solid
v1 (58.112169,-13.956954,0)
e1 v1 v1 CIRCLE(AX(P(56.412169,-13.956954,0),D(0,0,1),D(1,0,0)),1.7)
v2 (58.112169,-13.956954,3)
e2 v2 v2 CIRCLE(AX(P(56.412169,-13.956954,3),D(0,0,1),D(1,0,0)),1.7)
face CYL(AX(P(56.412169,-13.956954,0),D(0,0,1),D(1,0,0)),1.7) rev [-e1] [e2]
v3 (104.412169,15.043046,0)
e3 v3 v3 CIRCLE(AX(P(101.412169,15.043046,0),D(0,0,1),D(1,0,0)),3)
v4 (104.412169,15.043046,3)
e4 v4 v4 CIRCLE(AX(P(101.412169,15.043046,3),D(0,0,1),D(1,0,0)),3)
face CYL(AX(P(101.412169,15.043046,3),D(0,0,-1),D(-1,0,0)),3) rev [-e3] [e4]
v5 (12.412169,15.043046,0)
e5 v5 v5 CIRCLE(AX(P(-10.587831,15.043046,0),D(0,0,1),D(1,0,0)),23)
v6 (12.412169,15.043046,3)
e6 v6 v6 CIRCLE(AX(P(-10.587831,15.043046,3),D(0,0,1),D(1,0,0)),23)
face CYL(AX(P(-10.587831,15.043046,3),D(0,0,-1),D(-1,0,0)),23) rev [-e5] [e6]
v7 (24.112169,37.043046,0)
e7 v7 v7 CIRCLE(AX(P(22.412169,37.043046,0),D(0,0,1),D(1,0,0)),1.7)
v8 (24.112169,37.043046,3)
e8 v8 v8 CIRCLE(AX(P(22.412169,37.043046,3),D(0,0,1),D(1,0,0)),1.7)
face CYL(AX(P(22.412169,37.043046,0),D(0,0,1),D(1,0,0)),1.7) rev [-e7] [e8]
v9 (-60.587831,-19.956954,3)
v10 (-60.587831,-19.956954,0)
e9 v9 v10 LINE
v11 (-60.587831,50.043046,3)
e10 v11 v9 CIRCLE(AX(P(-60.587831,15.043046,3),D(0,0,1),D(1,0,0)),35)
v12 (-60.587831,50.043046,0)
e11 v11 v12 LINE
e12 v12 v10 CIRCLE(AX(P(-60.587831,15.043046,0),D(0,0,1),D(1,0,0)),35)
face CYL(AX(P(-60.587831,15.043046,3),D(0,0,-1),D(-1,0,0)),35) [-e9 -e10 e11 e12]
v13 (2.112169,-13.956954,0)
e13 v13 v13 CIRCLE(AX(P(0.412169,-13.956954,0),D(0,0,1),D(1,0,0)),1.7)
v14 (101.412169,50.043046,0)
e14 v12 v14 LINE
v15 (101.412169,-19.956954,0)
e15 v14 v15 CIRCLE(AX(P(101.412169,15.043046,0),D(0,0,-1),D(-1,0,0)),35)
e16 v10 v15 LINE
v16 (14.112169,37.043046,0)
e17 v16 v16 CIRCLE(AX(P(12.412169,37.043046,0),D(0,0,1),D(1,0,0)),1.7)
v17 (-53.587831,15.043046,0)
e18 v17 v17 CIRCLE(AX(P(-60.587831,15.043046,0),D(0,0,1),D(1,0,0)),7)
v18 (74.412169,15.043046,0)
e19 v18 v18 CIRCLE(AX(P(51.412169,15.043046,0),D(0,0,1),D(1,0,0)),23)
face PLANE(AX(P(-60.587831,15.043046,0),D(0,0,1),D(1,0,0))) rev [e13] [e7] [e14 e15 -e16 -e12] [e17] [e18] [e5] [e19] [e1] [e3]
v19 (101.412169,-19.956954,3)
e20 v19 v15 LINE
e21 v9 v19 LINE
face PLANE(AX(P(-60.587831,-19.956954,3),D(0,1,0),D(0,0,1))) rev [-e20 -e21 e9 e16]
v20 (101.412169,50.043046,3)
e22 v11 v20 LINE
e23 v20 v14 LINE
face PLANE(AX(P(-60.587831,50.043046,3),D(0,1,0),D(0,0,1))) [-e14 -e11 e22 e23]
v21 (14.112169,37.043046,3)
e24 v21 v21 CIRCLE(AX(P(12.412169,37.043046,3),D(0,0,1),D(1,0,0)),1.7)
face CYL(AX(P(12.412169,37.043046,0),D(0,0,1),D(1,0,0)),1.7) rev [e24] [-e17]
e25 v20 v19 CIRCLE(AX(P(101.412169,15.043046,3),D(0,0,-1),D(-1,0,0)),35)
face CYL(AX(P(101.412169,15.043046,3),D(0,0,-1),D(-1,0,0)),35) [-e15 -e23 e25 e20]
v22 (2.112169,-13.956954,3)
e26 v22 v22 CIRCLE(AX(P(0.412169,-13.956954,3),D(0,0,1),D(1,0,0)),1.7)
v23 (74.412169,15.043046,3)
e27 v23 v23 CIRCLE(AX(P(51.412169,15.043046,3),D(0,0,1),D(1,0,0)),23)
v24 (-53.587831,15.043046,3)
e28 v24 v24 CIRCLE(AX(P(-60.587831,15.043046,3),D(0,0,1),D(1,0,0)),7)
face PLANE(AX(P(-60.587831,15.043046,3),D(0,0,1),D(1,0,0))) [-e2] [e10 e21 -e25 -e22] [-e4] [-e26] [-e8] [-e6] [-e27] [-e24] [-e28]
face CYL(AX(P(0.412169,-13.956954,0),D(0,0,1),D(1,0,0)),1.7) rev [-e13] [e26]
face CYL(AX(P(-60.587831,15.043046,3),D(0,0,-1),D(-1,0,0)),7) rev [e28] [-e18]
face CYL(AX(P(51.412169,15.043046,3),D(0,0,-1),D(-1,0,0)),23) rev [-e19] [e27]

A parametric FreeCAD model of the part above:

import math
import FreeCAD as App
import Part
import Sketcher

V = App.Vector

doc = App.newDocument("Part")
body = doc.addObject("PartDesign::Body", "Body")

# Sketch on XY plane
sketch1 = body.newObject("Sketcher::SketchObject", "Sketch")
sketch1.AttachmentSupport = (doc.getObject("XY_Plane"), [""])
sketch1.MapMode = "FlatFace"
sketch1.addGeometry(Part.LineSegment(V(101.412169, 50.043046, 0), V(-60.587831, 50.043046, 0)), False)
sketch1.addGeometry(Part.ArcOfCircle(Part.Circle(V(-60.587831, 15.043046, 0), V(0, 0, 1), 35), math.radians(90), math.radians(270)), False)
sketch1.addGeometry(Part.LineSegment(V(-60.587831, -19.956954, 0), V(101.412169, -19.956954, 0)), False)
sketch1.addGeometry(Part.ArcOfCircle(Part.Circle(V(101.412169, 15.043046, 0), V(0, 0, 1), 35), math.radians(-90), math.radians(90)), False)
sketch1.addGeometry(Part.Circle(V(101.412169, 15.043046, 0), V(0, 0, 1), 3), False)
sketch1.addGeometry(Part.Circle(V(51.412169, 15.043046, 0), V(0, 0, 1), 23), False)
sketch1.addGeometry(Part.Circle(V(-10.587831, 15.043046, 0), V(0, 0, 1), 23), False)
sketch1.addGeometry(Part.Circle(V(-60.587831, 15.043046, 0), V(0, 0, 1), 7), False)
sketch1.addConstraint(Sketcher.Constraint("Tangent", 0, 2, 1, 1))
sketch1.addConstraint(Sketcher.Constraint("Tangent", 1, 2, 2, 1))
sketch1.addConstraint(Sketcher.Constraint("Tangent", 2, 2, 3, 1))
sketch1.addConstraint(Sketcher.Constraint("Tangent", 3, 2, 0, 1))
sketch1.addConstraint(Sketcher.Constraint("Horizontal", 0))
sketch1.addConstraint(Sketcher.Constraint("Horizontal", 2))
sketch1.addConstraint(Sketcher.Constraint("Coincident", 4, 3, 3, 3))
sketch1.addConstraint(Sketcher.Constraint("Coincident", 7, 3, 1, 3))
sketch1.addConstraint(Sketcher.Constraint("Equal", 5, 6))
sketch1.addConstraint(Sketcher.Constraint("Horizontal", 4, 3, 5, 3))
sketch1.addConstraint(Sketcher.Constraint("Horizontal", 5, 3, 6, 3))
sketch1.addConstraint(Sketcher.Constraint("Diameter", 4, 6.0))
sketch1.addConstraint(Sketcher.Constraint("Diameter", 5, 46.0))
sketch1.addConstraint(Sketcher.Constraint("Diameter", 7, 14.0))
sketch1.addConstraint(Sketcher.Constraint("Radius", 1, 35.0))
sketch1.addConstraint(Sketcher.Constraint("DistanceX", 0, 2, 0, 1, 162.0))
sketch1.addConstraint(Sketcher.Constraint("DistanceX", 5, 3, 3, 3, 50.0))
sketch1.addConstraint(Sketcher.Constraint("DistanceX", 1, 3, 6, 3, 50.0))
sketch1.addConstraint(Sketcher.Constraint("DistanceX", 1, 3, -1, 1, 60.587831))
sketch1.addConstraint(Sketcher.Constraint("DistanceY", -1, 1, 1, 3, 15.043046))
pad1 = body.newObject("PartDesign::Pad", "Pad")
pad1.Profile = sketch1
pad1.Length = 3

# Sketch on XY plane
sketch2 = body.newObject("Sketcher::SketchObject", "Sketch001")
sketch2.AttachmentSupport = (doc.getObject("XY_Plane"), [""])
sketch2.MapMode = "FlatFace"
sketch2.AttachmentOffset = App.Placement(V(0, 0, 3), App.Rotation())
sketch2.addGeometry(Part.Circle(V(12.412169, 37.043046, 0), V(0, 0, 1), 1.7), False)
sketch2.addConstraint(Sketcher.Constraint("Diameter", 0, 3.4))
sketch2.addConstraint(Sketcher.Constraint("DistanceX", -1, 1, 0, 3, 12.412169))
sketch2.addConstraint(Sketcher.Constraint("DistanceY", -1, 1, 0, 3, 37.043046))
pocket1 = body.newObject("PartDesign::Pocket", "Pocket")
pocket1.Profile = sketch2
pocket1.Type = "ThroughAll"
doc.recompute()

linearpattern = body.newObject("PartDesign::LinearPattern", "LinearPattern")
linearpattern.Originals = [pocket1]
linearpattern.Direction = (doc.getObject("X_Axis"), [""])
linearpattern.Mode = "offset"
linearpattern.Offset = 10
linearpattern.Occurrences = 2
body.Tip = linearpattern

# Sketch on XY plane
sketch3 = body.newObject("Sketcher::SketchObject", "Sketch002")
sketch3.AttachmentSupport = (doc.getObject("XY_Plane"), [""])
sketch3.MapMode = "FlatFace"
sketch3.AttachmentOffset = App.Placement(V(0, 0, 3), App.Rotation())
sketch3.addGeometry(Part.Circle(V(0.412169, -13.956954, 0), V(0, 0, 1), 1.7), False)
sketch3.addConstraint(Sketcher.Constraint("Diameter", 0, 3.4))
sketch3.addConstraint(Sketcher.Constraint("DistanceX", -1, 1, 0, 3, 0.412169))
sketch3.addConstraint(Sketcher.Constraint("DistanceY", 0, 3, -1, 1, 13.956954))
pocket2 = body.newObject("PartDesign::Pocket", "Pocket001")
pocket2.Profile = sketch3
pocket2.Type = "ThroughAll"
doc.recompute()

linearpattern2 = body.newObject("PartDesign::LinearPattern", "LinearPattern001")
linearpattern2.Originals = [pocket2]
linearpattern2.Direction = (doc.getObject("X_Axis"), [""])
linearpattern2.Mode = "offset"
linearpattern2.Offset = 56
linearpattern2.Occurrences = 2
body.Tip = linearpattern2

doc.recompute()
